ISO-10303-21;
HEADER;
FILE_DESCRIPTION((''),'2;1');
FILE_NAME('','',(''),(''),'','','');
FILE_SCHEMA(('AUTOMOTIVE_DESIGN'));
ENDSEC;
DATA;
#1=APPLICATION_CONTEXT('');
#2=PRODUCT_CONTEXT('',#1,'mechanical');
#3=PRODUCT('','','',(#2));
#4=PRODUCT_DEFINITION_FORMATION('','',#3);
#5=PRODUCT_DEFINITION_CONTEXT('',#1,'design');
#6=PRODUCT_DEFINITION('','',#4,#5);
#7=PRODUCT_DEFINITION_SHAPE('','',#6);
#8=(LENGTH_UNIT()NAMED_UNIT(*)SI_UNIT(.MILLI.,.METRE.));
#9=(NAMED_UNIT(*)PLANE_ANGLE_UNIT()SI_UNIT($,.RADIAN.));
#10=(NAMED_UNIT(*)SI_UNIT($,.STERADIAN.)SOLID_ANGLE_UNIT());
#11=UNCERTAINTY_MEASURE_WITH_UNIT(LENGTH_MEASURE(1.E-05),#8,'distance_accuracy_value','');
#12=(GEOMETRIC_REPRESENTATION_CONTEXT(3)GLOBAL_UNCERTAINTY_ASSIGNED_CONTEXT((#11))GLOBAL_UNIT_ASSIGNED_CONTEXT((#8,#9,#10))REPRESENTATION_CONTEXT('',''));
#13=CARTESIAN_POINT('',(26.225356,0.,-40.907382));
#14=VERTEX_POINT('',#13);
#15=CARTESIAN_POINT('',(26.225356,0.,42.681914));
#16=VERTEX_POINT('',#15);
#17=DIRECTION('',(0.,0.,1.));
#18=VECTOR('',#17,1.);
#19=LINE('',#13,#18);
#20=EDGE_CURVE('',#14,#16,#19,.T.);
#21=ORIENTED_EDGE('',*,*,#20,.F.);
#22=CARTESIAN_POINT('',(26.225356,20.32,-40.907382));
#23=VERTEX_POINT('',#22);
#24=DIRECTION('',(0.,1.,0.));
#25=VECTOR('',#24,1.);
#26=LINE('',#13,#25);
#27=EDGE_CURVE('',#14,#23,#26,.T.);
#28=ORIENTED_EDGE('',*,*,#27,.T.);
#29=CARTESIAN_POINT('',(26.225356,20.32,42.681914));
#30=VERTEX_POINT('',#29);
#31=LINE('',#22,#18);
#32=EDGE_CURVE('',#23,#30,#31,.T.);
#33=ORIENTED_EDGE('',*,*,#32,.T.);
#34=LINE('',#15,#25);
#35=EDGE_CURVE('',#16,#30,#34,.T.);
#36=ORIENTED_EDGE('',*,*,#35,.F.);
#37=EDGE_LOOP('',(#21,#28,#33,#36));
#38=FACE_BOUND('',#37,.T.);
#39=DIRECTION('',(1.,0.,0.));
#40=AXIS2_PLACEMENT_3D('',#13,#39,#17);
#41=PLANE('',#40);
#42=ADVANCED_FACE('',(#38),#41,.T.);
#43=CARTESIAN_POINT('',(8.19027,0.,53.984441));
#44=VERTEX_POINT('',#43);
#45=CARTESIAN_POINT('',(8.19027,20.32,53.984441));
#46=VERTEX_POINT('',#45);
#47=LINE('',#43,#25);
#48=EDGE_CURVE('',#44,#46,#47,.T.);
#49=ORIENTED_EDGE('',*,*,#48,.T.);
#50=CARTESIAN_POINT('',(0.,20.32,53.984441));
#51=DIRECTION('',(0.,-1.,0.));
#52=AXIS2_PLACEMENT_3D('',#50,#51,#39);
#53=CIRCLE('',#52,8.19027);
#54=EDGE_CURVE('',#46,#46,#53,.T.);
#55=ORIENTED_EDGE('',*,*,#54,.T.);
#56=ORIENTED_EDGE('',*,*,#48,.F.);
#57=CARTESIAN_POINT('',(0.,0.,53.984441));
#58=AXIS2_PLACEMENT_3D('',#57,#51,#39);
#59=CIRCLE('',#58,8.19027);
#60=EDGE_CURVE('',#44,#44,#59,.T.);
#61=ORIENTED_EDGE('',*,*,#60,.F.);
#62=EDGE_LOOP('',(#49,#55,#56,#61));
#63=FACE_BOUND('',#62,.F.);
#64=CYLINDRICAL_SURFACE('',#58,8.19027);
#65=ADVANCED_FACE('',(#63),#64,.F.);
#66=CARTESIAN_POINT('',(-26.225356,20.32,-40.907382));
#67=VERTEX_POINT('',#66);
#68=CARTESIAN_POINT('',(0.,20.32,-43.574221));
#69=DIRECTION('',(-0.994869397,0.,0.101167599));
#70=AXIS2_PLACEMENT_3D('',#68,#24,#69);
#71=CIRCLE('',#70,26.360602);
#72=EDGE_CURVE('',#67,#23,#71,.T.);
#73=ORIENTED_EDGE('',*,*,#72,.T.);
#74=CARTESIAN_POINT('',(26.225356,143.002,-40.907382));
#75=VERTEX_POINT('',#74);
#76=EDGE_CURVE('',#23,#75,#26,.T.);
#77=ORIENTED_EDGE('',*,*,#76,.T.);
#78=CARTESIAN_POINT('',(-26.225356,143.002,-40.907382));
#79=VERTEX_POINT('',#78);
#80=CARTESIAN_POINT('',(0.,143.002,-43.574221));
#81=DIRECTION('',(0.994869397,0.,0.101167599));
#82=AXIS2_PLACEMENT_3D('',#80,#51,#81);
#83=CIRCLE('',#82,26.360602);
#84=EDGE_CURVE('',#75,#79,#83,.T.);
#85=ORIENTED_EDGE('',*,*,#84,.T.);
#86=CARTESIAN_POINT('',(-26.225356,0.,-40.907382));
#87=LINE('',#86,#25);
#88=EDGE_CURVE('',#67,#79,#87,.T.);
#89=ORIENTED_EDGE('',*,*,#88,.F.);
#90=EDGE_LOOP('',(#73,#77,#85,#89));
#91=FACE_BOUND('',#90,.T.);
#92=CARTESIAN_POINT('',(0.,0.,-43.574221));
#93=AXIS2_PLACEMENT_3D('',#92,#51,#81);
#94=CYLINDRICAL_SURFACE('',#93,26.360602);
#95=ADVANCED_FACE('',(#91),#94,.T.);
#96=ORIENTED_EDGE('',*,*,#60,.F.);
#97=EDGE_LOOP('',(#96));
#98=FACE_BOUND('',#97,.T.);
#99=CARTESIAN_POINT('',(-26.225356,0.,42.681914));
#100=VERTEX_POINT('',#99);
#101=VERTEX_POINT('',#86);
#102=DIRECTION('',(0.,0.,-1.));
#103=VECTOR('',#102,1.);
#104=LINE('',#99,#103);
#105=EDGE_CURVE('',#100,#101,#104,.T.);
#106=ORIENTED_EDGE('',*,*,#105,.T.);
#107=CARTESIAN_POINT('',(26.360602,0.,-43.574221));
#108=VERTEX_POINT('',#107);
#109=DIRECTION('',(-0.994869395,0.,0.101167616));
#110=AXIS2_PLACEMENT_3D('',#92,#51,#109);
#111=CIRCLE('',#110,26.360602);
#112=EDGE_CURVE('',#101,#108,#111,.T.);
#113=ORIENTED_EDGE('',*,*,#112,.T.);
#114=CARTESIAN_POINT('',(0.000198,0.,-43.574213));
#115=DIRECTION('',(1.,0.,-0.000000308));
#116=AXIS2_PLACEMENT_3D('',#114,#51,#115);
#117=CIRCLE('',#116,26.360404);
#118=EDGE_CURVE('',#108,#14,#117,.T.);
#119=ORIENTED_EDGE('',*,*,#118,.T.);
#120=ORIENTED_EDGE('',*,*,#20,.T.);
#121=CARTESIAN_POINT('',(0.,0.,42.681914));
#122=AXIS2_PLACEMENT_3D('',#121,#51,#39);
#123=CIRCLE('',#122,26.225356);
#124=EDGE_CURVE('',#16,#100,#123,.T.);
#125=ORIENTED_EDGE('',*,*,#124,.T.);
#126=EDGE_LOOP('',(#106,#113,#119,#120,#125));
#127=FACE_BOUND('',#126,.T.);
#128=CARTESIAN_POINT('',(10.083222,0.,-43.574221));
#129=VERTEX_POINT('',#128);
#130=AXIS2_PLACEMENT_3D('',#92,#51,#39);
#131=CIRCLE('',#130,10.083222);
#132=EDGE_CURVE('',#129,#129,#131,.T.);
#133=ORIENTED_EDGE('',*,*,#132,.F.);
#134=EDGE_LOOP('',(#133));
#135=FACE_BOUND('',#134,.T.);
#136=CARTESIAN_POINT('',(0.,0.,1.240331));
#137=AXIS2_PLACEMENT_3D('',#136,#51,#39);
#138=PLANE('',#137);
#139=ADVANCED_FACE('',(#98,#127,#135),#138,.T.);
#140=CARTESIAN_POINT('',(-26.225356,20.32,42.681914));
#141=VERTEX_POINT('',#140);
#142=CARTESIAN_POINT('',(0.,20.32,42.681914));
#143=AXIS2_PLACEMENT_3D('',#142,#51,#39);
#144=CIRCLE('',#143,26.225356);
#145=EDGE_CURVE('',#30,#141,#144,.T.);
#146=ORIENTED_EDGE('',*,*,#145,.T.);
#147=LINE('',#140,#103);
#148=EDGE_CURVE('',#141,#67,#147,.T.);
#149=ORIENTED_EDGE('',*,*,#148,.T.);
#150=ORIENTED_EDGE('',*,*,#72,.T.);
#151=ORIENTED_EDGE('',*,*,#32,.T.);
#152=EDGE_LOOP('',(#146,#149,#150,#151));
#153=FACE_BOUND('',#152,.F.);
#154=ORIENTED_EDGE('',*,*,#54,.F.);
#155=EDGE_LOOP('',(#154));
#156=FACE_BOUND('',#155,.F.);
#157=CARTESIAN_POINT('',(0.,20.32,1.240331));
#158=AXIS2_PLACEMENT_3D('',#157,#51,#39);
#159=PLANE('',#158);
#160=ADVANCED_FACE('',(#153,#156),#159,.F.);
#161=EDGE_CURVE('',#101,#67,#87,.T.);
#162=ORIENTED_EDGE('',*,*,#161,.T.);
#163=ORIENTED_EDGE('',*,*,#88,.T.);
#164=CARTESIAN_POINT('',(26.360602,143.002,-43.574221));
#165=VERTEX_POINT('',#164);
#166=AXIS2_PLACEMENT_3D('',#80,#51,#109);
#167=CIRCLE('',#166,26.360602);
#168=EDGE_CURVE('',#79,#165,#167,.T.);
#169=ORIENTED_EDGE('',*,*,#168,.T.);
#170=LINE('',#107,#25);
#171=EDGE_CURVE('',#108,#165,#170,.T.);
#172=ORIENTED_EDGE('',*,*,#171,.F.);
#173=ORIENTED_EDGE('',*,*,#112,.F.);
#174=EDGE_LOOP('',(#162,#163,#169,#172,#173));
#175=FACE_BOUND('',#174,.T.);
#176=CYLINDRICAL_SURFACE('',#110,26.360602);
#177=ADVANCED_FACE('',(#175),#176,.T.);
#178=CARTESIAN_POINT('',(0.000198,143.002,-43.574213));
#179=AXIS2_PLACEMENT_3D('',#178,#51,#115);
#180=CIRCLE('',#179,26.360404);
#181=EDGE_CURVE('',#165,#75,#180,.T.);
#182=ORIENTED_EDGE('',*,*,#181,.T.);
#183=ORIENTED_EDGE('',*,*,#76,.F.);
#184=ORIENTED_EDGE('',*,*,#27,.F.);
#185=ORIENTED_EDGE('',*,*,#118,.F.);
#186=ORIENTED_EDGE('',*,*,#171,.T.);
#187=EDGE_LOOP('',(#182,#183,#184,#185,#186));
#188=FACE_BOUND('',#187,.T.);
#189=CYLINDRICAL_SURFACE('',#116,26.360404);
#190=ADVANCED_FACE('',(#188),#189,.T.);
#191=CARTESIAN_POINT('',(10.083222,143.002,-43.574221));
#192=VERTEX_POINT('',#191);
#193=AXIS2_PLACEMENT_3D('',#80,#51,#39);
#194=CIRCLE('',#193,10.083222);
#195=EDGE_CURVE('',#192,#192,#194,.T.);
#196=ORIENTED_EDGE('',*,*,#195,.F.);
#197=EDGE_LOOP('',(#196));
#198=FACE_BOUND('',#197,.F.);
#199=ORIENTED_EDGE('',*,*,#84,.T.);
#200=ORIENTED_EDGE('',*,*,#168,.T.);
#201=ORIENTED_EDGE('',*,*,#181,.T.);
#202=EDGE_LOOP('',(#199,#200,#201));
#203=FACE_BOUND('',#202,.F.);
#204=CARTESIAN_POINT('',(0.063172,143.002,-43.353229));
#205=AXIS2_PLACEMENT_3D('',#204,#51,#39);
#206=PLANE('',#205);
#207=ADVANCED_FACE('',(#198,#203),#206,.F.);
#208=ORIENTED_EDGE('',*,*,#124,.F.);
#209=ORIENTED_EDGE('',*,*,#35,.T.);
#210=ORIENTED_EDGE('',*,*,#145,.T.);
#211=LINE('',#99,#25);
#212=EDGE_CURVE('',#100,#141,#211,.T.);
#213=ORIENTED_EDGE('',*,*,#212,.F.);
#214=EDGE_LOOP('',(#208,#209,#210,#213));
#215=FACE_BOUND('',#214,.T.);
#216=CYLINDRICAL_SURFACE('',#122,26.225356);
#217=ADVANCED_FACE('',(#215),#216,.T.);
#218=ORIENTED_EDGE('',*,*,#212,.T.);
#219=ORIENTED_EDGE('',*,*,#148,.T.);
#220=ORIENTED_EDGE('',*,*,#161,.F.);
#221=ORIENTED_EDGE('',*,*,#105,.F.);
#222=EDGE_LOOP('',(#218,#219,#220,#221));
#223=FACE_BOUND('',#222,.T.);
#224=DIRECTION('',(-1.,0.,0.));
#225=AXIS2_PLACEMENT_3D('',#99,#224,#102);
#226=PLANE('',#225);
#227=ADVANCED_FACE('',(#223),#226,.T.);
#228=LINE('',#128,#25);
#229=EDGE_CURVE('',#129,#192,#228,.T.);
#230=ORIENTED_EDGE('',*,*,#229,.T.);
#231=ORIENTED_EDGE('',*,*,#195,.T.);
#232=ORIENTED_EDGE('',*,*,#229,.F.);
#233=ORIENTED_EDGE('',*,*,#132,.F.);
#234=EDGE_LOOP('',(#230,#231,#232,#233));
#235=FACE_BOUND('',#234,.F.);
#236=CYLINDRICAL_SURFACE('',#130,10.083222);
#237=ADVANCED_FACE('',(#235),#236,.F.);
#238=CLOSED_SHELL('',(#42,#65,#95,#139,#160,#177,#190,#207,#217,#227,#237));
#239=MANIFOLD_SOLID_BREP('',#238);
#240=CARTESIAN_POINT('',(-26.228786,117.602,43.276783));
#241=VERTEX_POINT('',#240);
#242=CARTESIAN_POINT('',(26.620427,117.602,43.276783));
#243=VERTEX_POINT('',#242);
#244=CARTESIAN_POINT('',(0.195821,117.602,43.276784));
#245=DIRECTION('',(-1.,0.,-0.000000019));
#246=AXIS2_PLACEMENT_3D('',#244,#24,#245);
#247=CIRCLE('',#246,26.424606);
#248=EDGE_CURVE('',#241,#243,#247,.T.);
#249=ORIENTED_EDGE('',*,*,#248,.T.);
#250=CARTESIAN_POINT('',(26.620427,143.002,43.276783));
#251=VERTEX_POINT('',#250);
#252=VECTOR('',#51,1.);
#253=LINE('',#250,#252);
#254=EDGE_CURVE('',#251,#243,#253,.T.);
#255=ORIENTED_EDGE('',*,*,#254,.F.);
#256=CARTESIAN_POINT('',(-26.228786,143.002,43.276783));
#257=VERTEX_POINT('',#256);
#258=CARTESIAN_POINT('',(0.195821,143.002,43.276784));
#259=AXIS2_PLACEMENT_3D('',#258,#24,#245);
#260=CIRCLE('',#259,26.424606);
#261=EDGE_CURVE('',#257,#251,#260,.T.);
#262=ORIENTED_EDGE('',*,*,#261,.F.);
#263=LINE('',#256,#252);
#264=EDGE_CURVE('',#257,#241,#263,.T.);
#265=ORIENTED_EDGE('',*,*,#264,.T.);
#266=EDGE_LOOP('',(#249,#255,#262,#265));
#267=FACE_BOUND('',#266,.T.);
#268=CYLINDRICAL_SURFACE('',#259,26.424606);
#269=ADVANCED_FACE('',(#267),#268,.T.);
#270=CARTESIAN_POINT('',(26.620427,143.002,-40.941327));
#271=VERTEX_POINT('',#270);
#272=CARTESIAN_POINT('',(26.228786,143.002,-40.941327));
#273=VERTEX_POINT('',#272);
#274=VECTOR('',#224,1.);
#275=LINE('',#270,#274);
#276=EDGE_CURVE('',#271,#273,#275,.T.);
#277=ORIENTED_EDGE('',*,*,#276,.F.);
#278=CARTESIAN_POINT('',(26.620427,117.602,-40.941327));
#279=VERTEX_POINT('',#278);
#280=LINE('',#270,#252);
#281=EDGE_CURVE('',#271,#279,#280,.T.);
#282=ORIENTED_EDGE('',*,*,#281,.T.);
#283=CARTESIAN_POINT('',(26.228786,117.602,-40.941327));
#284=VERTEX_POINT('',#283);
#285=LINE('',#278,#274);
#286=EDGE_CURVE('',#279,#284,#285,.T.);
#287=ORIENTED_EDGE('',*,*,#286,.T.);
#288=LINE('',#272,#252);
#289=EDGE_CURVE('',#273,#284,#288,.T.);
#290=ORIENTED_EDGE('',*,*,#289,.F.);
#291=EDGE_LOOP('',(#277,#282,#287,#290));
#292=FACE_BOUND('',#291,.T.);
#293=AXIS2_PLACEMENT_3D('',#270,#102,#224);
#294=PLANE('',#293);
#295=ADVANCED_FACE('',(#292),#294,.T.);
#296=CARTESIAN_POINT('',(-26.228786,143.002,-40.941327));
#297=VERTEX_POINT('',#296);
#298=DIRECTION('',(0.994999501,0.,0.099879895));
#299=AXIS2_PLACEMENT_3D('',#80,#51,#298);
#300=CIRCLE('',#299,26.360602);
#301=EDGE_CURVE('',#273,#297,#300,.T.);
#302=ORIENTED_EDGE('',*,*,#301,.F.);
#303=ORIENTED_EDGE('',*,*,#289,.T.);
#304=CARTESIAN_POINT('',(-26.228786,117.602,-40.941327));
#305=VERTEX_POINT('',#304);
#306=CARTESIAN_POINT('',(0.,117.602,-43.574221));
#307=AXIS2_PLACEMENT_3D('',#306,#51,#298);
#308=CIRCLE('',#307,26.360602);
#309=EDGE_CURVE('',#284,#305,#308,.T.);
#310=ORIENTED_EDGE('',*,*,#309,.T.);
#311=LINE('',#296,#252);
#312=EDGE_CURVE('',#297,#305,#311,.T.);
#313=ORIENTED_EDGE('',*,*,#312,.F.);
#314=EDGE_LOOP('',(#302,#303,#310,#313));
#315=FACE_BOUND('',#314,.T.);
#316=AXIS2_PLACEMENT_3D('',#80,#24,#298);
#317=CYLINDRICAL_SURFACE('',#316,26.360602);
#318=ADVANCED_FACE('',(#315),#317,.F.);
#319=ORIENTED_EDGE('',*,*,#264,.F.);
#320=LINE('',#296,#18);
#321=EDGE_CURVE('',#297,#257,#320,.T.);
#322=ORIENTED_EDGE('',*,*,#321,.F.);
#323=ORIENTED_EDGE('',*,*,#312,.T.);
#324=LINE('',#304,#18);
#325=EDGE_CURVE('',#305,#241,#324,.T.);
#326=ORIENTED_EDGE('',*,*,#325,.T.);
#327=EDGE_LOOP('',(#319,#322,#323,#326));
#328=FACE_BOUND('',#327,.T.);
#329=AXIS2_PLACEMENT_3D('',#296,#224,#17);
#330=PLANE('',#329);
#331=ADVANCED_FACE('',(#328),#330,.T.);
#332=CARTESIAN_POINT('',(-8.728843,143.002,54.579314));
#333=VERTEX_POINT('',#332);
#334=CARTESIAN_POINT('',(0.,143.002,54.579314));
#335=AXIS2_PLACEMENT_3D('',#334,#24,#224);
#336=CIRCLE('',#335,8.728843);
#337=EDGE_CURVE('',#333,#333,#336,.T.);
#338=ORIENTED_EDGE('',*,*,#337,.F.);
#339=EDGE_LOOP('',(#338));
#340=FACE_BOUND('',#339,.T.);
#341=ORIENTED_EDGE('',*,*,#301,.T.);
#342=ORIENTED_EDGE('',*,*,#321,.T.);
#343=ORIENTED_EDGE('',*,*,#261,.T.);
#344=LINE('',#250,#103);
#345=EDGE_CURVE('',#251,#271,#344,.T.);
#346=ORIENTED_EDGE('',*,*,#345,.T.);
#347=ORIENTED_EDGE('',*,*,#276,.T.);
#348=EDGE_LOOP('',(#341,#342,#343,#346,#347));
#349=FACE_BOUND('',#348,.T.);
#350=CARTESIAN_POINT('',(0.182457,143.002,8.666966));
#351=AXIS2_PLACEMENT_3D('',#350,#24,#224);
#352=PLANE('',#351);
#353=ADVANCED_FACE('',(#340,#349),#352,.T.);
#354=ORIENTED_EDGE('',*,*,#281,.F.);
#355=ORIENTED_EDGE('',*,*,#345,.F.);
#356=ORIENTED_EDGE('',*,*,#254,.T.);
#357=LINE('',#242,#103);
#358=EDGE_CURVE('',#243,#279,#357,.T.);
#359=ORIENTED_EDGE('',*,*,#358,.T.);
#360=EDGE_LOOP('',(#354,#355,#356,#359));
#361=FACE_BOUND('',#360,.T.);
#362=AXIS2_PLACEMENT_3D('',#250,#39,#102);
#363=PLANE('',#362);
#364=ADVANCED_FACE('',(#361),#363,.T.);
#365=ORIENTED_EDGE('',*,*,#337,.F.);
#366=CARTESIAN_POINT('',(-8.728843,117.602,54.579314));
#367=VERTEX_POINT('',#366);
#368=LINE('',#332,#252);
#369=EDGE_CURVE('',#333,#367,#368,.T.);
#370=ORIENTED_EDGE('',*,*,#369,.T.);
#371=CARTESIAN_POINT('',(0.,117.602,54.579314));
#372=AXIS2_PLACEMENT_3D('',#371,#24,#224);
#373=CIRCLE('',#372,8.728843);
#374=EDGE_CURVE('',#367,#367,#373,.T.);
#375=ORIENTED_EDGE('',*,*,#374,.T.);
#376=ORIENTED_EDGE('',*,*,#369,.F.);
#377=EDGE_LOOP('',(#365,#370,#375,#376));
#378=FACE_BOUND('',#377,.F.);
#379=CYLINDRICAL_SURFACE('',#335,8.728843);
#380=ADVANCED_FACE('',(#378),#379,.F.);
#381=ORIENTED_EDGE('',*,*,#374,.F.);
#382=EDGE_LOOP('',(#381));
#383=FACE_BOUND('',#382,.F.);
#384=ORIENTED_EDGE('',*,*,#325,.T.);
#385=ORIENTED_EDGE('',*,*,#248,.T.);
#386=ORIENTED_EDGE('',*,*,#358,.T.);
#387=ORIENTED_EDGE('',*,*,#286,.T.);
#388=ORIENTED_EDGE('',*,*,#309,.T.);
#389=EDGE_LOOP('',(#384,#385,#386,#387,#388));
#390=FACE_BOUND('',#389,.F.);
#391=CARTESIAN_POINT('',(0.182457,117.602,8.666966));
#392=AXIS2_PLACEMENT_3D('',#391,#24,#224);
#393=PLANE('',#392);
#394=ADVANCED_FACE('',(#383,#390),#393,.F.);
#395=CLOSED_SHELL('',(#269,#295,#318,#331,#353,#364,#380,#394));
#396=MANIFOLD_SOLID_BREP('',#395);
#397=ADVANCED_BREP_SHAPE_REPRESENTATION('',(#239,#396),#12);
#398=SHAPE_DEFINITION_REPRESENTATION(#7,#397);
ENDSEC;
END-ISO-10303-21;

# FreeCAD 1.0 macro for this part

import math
import FreeCAD as App
import Part
import Sketcher

V = App.Vector
Q = App.Units.Quantity

doc = App.newDocument("Part")
body = doc.addObject("PartDesign::Body", "Body")

# Sketch on XZ plane
sketch1 = doc.addObject("Sketcher::SketchObject", "Sketch")
body.addObject(sketch1)
sketch1.AttachmentSupport = (doc.XZ_Plane, [""])
sketch1.MapMode = "FlatFace"
sketch1.addGeometry(Part.ArcOfCircle(Part.Circle(V(0, -43.574221, 0), V(0, 0, 1), 26.360602), math.radians(174.193589), math.radians(360.000001)), False)
sketch1.addGeometry(Part.ArcOfCircle(Part.Circle(V(0.000198, -43.574213, 0), V(0, 0, 1), 26.360404), math.radians(-0.000018), math.radians(5.806436)), False)
sketch1.addGeometry(Part.ArcOfCircle(Part.Circle(V(0, -43.574221, 0), V(0, 0, 1), 26.360602), math.radians(5.80641), math.radians(174.19359)), False)
sketch1.addGeometry(Part.Circle(V(0, -43.574221, 0), V(0, 0, 1), 10.083222), False)
sketch1.addConstraint(Sketcher.Constraint("Coincident", 0, 2, 1, 1))
sketch1.addConstraint(Sketcher.Constraint("Coincident", 1, 2, 2, 1))
sketch1.addConstraint(Sketcher.Constraint("Coincident", 2, 2, 0, 1))
sketch1.addConstraint(Sketcher.Constraint("Coincident", 2, 3, 0, 3))
sketch1.addConstraint(Sketcher.Constraint("Coincident", 3, 3, 0, 3))
sketch1.addConstraint(Sketcher.Constraint("PointOnObject", 0, 3, -2))
sketch1.addConstraint(Sketcher.Constraint("Radius", 0, 26.360602))
sketch1.addConstraint(Sketcher.Constraint("Diameter", 3, 20.166444))
sketch1.addConstraint(Sketcher.Constraint("Radius", 1, 26.360404))
sketch1.addConstraint(Sketcher.Constraint("DistanceY", 0, 3, -1, 1, 43.574221))
sketch1.addConstraint(Sketcher.Constraint("DistanceY", 0, 2, -1, 1, 43.574221))
sketch1.addConstraint(Sketcher.Constraint("DistanceY", 0, 2, 1, 2, 2.666839))
sketch1.addConstraint(Sketcher.Constraint("DistanceY", 2, 3, 2, 2, 2.666839))
pad1 = doc.addObject("PartDesign::Pad", "Pad")
body.addObject(pad1)
pad1.Profile = sketch1
pad1.Length = Q("5.63 in")
pad1.Reversed = True

# Sketch on XZ plane
sketch2 = doc.addObject("Sketcher::SketchObject", "Sketch001")
body.addObject(sketch2)
sketch2.AttachmentSupport = (doc.XZ_Plane, [""])
sketch2.MapMode = "FlatFace"
sketch2.addGeometry(Part.ArcOfCircle(Part.Circle(V(0, -44, 0), V(0, 0, 1), 26), math.radians(6), math.radians(174)), False)
sketch2.addGeometry(Part.LineSegment(V(26, -41, 0), V(26, 43, 0)), False)
sketch2.addGeometry(Part.ArcOfCircle(Part.Circle(V(0, 43, 0), V(0, 0, 1), 26), math.radians(0), math.radians(180)), False)
sketch2.addGeometry(Part.LineSegment(V(-26, 43, 0), V(-26, -41, 0)), False)
sketch2.addGeometry(Part.Circle(V(0, 54, 0), V(0, 0, 1), 8), False)
sketch2.addConstraint(Sketcher.Constraint("Coincident", 0, 1, 1, 1))
sketch2.addConstraint(Sketcher.Constraint("Tangent", 1, 2, 2, 1))
sketch2.addConstraint(Sketcher.Constraint("Tangent", 2, 2, 3, 1))
sketch2.addConstraint(Sketcher.Constraint("Coincident", 3, 2, 0, 2))
sketch2.addConstraint(Sketcher.Constraint("Vertical", 1))
sketch2.addConstraint(Sketcher.Constraint("Vertical", 3))
sketch2.addConstraint(Sketcher.Constraint("Symmetric", 0, 1, 3, 2, -2))
sketch2.addConstraint(Sketcher.Constraint("PointOnObject", 4, 3, -2))
sketch2.addConstraint(Sketcher.Constraint("Radius", 0, 26.360602))
sketch2.addConstraint(Sketcher.Constraint("Diameter", 4, 16.38054))
sketch2.addConstraint(Sketcher.Constraint("Radius", 2, 26.225356))
sketch2.addConstraint(Sketcher.Constraint("DistanceY", 1, 1, 1, 2, 83.589296))
sketch2.addConstraint(Sketcher.Constraint("DistanceY", 0, 3, -1, 1, 43.574221))
sketch2.addConstraint(Sketcher.Constraint("DistanceY", -1, 1, 4, 3, 53.984441))
pad2 = doc.addObject("PartDesign::Pad", "Pad001")
body.addObject(pad2)
pad2.Profile = sketch2
pad2.Length = Q("0.8 in")
pad2.Reversed = True
body2 = doc.addObject("PartDesign::Body", "Body001")

# Sketch on XZ plane
sketch3 = doc.addObject("Sketcher::SketchObject", "Sketch002")
body2.addObject(sketch3)
sketch3.AttachmentSupport = (doc.getObject("XZ_Plane001"), [""])
sketch3.MapMode = "FlatFace"
sketch3.AttachmentOffset = App.Placement(V(0, 0, -5.63 * 25.4), App.Rotation())
sketch3.addGeometry(Part.LineSegment(V(26.62, 43.28, 0), V(26.62, -40.94, 0)), False)
sketch3.addGeometry(Part.LineSegment(V(26.62, -40.94, 0), V(26.23, -40.94, 0)), False)
sketch3.addGeometry(Part.ArcOfCircle(Part.Circle(V(0, -43.57, 0), V(0, 0, 1), 26.36), math.radians(6), math.radians(174)), False)
sketch3.addGeometry(Part.LineSegment(V(-26.23, -40.94, 0), V(-26.23, 43.28, 0)), False)
sketch3.addGeometry(Part.ArcOfCircle(Part.Circle(V(0.2, 43.28, 0), V(0, 0, 1), 26.42), math.radians(0), math.radians(180)), False)
sketch3.addGeometry(Part.Circle(V(0, 54.58, 0), V(0, 0, 1), 8.73), False)
sketch3.addConstraint(Sketcher.Constraint("Coincident", 0, 2, 1, 1))
sketch3.addConstraint(Sketcher.Constraint("Coincident", 1, 2, 2, 1))
sketch3.addConstraint(Sketcher.Constraint("Coincident", 2, 2, 3, 1))
sketch3.addConstraint(Sketcher.Constraint("Tangent", 3, 2, 4, 2))
sketch3.addConstraint(Sketcher.Constraint("Tangent", 4, 1, 0, 1))
sketch3.addConstraint(Sketcher.Constraint("Vertical", 0))
sketch3.addConstraint(Sketcher.Constraint("Horizontal", 1))
sketch3.addConstraint(Sketcher.Constraint("Vertical", 3))
sketch3.addConstraint(Sketcher.Constraint("Symmetric", 1, 2, 2, 2, -2))
sketch3.addConstraint(Sketcher.Constraint("PointOnObject", 5, 3, -2))
sketch3.addConstraint(Sketcher.Constraint("Diameter", 5, 17.457686))
sketch3.addConstraint(Sketcher.Constraint("Radius", 2, 26.360602))
sketch3.addConstraint(Sketcher.Constraint("Radius", 4, 26.424606))
sketch3.addConstraint(Sketcher.Constraint("DistanceX", 1, 2, 1, 1, 0.391641))
sketch3.addConstraint(Sketcher.Constraint("DistanceY", 0, 2, 0, 1, 84.21811))
sketch3.addConstraint(Sketcher.Constraint("DistanceY", 2, 3, -1, 1, 43.574221))
sketch3.addConstraint(Sketcher.Constraint("DistanceY", 4, 3, 5, 3, 11.30253))
pad3 = doc.addObject("PartDesign::Pad", "Pad002")
body2.addObject(pad3)
pad3.Profile = sketch3
pad3.Length = Q("1 in")

doc.recompute()
